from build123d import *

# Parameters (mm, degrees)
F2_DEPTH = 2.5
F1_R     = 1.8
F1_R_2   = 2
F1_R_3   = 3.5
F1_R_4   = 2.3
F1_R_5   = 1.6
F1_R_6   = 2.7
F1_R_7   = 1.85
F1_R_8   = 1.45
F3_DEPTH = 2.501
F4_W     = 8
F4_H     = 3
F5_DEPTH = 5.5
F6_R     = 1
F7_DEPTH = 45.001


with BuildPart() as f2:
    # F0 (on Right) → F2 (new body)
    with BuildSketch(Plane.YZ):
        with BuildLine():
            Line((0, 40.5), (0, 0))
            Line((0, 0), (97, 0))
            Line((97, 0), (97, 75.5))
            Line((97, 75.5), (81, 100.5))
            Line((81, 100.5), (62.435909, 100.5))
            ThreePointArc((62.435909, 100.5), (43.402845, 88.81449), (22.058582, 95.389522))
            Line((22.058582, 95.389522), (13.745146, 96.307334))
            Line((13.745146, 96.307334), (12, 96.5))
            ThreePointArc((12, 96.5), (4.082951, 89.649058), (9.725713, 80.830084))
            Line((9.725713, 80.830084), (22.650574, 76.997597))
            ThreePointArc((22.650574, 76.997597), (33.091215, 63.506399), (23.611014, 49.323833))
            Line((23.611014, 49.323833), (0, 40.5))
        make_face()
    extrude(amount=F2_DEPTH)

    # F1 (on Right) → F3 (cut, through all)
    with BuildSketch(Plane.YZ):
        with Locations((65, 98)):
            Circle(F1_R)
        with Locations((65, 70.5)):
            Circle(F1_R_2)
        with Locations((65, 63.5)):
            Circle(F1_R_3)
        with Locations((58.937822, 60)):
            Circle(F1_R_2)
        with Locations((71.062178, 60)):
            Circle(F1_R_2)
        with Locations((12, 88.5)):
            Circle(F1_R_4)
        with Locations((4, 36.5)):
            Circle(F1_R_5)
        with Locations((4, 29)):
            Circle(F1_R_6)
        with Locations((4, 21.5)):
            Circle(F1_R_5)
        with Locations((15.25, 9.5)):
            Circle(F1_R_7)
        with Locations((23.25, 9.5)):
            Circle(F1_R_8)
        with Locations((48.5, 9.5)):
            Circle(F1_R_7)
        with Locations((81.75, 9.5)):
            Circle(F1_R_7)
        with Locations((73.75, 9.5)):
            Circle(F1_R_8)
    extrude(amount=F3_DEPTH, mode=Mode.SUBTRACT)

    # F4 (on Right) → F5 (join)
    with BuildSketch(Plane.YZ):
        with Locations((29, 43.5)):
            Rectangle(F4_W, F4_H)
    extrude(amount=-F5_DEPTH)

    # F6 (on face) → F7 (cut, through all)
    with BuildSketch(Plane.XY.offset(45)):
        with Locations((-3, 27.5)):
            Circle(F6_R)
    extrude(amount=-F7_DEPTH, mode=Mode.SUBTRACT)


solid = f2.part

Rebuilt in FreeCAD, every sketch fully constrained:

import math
import FreeCAD as App
import Part
import Sketcher
Q = App.Units.Quantity

doc = App.newDocument("Part")
body = doc.addObject("PartDesign::Body", "Body")

sketch1 = body.newObject("Sketcher::SketchObject", "Sketch")
sketch1.AttachmentSupport = (doc.getObject("YZ_Plane"), [""])
sketch1.MapMode = "FlatFace"
sketch1.addGeometry(Part.LineSegment(App.Vector(0, 40.5, 0), App.Vector(0, 0, 0)), False)
sketch1.addGeometry(Part.LineSegment(App.Vector(0, 0, 0), App.Vector(97, 0, 0)), False)
sketch1.addGeometry(Part.LineSegment(App.Vector(97, 0, 0), App.Vector(97, 75.5, 0)), False)
sketch1.addGeometry(Part.LineSegment(App.Vector(97, 75.5, 0), App.Vector(81, 100.5, 0)), False)
sketch1.addGeometry(Part.LineSegment(App.Vector(81, 100.5, 0), App.Vector(62.4, 100.5, 0)), False)
sketch1.addGeometry(Part.ArcOfCircle(Part.Circle(App.Vector(40, 115.7, 0), App.Vector(0, 0, 1), 27.1), math.radians(-131), math.radians(-34)), False)
sketch1.addGeometry(Part.LineSegment(App.Vector(22.1, 95.4, 0), App.Vector(13.7, 96.3, 0)), False)
sketch1.addGeometry(Part.LineSegment(App.Vector(13.7, 96.3, 0), App.Vector(12, 96.5, 0)), False)
sketch1.addGeometry(Part.ArcOfCircle(Part.Circle(App.Vector(12, 88.5, 0), App.Vector(0, 0, 1), 8), math.radians(90), math.radians(253)), False)
sketch1.addGeometry(Part.LineSegment(App.Vector(9.7, 80.8, 0), App.Vector(22.7, 77, 0)), False)
sketch1.addGeometry(Part.ArcOfCircle(Part.Circle(App.Vector(18.5, 63, 0), App.Vector(0, 0, 1), 14.6), math.radians(-70), math.radians(73)), False)
sketch1.addGeometry(Part.LineSegment(App.Vector(23.6, 49.3, 0), App.Vector(0, 40.5, 0)), False)
sketch1.addConstraint(Sketcher.Constraint("Coincident", 0, 2, 1, 1))
sketch1.addConstraint(Sketcher.Constraint("Coincident", 1, 2, 2, 1))
sketch1.addConstraint(Sketcher.Constraint("Coincident", 2, 2, 3, 1))
sketch1.addConstraint(Sketcher.Constraint("Coincident", 3, 2, 4, 1))
sketch1.addConstraint(Sketcher.Constraint("Coincident", 4, 2, 5, 2))
sketch1.addConstraint(Sketcher.Constraint("Coincident", 5, 1, 6, 1))
sketch1.addConstraint(Sketcher.Constraint("Coincident", 6, 2, 7, 1))
sketch1.addConstraint(Sketcher.Constraint("Coincident", 7, 2, 8, 1))
sketch1.addConstraint(Sketcher.Constraint("Tangent", 8, 2, 9, 1))
sketch1.addConstraint(Sketcher.Constraint("Tangent", 9, 2, 10, 2))
sketch1.addConstraint(Sketcher.Constraint("Tangent", 10, 1, 11, 1))
sketch1.addConstraint(Sketcher.Constraint("Coincident", 11, 2, 0, 1))
sketch1.addConstraint(Sketcher.Constraint("Vertical", 0))
sketch1.addConstraint(Sketcher.Constraint("Horizontal", 1))
sketch1.addConstraint(Sketcher.Constraint("Vertical", 2))
sketch1.addConstraint(Sketcher.Constraint("Horizontal", 4))
sketch1.addConstraint(Sketcher.Constraint("Coincident", 0, 2, -1, 1))
sketch1.addConstraint(Sketcher.Constraint("Parallel", 6, 7))
sketch1.addConstraint(Sketcher.Constraint("Vertical", 8, 3, 7, 2))
sketch1.addConstraint(Sketcher.Constraint("Radius", 8, 8.0))
sketch1.addConstraint(Sketcher.Constraint("Radius", 5, 27.1))
sketch1.addConstraint(Sketcher.Constraint("Radius", 10, 14.6))
sketch1.addConstraint(Sketcher.Constraint("DistanceX", 1, 1, 1, 2, 97.0))
sketch1.addConstraint(Sketcher.Constraint("DistanceY", 0, 2, 0, 1, 40.5))
sketch1.addConstraint(Sketcher.Constraint("DistanceY", 2, 1, 2, 2, 75.5))
sketch1.addConstraint(Sketcher.Constraint("DistanceX", -1, 1, 5, 3, 40.0))
sketch1.addConstraint(Sketcher.Constraint("DistanceX", -1, 1, 8, 3, 12.0))
sketch1.addConstraint(Sketcher.Constraint("DistanceY", -1, 1, 10, 3, 63.0))
sketch1.addConstraint(Sketcher.Constraint("DistanceX", -1, 1, 3, 2, 81.0))
sketch1.addConstraint(Sketcher.Constraint("Angle", 6, Q("173.699999 deg")))
sketch1.addConstraint(Sketcher.Constraint("DistanceY", 2, 2, 8, 3, 13.0))
sketch1.addConstraint(Sketcher.Constraint("DistanceY", 2, 2, 3, 2, 25.0))
sketch1.addConstraint(Sketcher.Constraint("DistanceY", -1, 1, 5, 3, 115.7))
sketch1.addConstraint(Sketcher.Constraint("DistanceX", -1, 1, 10, 3, 18.5))
sketch1.addConstraint(Sketcher.Constraint("Distance", 7, 1.755749))
pad1 = body.newObject("PartDesign::Pad", "Pad")
pad1.Profile = sketch1
pad1.Length = 2.5

sketch2 = body.newObject("Sketcher::SketchObject", "Sketch001")
sketch2.AttachmentSupport = (doc.getObject("YZ_Plane"), [""])
sketch2.MapMode = "FlatFace"
sketch2.addGeometry(Part.Circle(App.Vector(65, 98, 0), App.Vector(0, 0, 1), 1.8), False)
sketch2.addGeometry(Part.Circle(App.Vector(65, 70.5, 0), App.Vector(0, 0, 1), 2), False)
sketch2.addGeometry(Part.Circle(App.Vector(65, 63.5, 0), App.Vector(0, 0, 1), 3.5), False)
sketch2.addGeometry(Part.Circle(App.Vector(58.9, 60, 0), App.Vector(0, 0, 1), 2), False)
sketch2.addGeometry(Part.Circle(App.Vector(71.1, 60, 0), App.Vector(0, 0, 1), 2), False)
sketch2.addGeometry(Part.Circle(App.Vector(12, 88.5, 0), App.Vector(0, 0, 1), 2.3), False)
sketch2.addGeometry(Part.Circle(App.Vector(4, 36.5, 0), App.Vector(0, 0, 1), 1.6), False)
sketch2.addGeometry(Part.Circle(App.Vector(4, 29, 0), App.Vector(0, 0, 1), 2.7), False)
sketch2.addGeometry(Part.Circle(App.Vector(4, 21.5, 0), App.Vector(0, 0, 1), 1.6), False)
sketch2.addGeometry(Part.Circle(App.Vector(15.2, 9.5, 0), App.Vector(0, 0, 1), 1.9), False)
sketch2.addGeometry(Part.Circle(App.Vector(23.2, 9.5, 0), App.Vector(0, 0, 1), 1.4), False)
sketch2.addGeometry(Part.Circle(App.Vector(48.5, 9.5, 0), App.Vector(0, 0, 1), 1.9), False)
sketch2.addGeometry(Part.Circle(App.Vector(81.8, 9.5, 0), App.Vector(0, 0, 1), 1.9), False)
sketch2.addGeometry(Part.Circle(App.Vector(73.8, 9.5, 0), App.Vector(0, 0, 1), 1.4), False)
sketch2.addConstraint(Sketcher.Constraint("Equal", 1, 3))
sketch2.addConstraint(Sketcher.Constraint("Equal", 3, 4))
sketch2.addConstraint(Sketcher.Constraint("Equal", 6, 8))
sketch2.addConstraint(Sketcher.Constraint("Equal", 9, 11))
sketch2.addConstraint(Sketcher.Constraint("Equal", 11, 12))
sketch2.addConstraint(Sketcher.Constraint("Equal", 10, 13))
sketch2.addConstraint(Sketcher.Constraint("Horizontal", 3, 3, 4, 3))
sketch2.addConstraint(Sketcher.Constraint("Horizontal", 9, 3, 10, 3))
sketch2.addConstraint(Sketcher.Constraint("Horizontal", 10, 3, 11, 3))
sketch2.addConstraint(Sketcher.Constraint("Horizontal", 11, 3, 12, 3))
sketch2.addConstraint(Sketcher.Constraint("Horizontal", 12, 3, 13, 3))
sketch2.addConstraint(Sketcher.Constraint("Vertical", 0, 3, 1, 3))
sketch2.addConstraint(Sketcher.Constraint("Vertical", 1, 3, 2, 3))
sketch2.addConstraint(Sketcher.Constraint("Vertical", 6, 3, 7, 3))
sketch2.addConstraint(Sketcher.Constraint("Vertical", 7, 3, 8, 3))
sketch2.addConstraint(Sketcher.Constraint("Diameter", 1, 4.0))
sketch2.addConstraint(Sketcher.Constraint("Diameter", 2, 7.0))
sketch2.addConstraint(Sketcher.Constraint("Diameter", 0, 3.6))
sketch2.addConstraint(Sketcher.Constraint("Diameter", 5, 4.6))
sketch2.addConstraint(Sketcher.Constraint("Diameter", 6, 3.2))
sketch2.addConstraint(Sketcher.Constraint("Diameter", 7, 5.4))
sketch2.addConstraint(Sketcher.Constraint("Diameter", 9, 3.7))
sketch2.addConstraint(Sketcher.Constraint("Diameter", 10, 2.9))
sketch2.addConstraint(Sketcher.Constraint("DistanceX", -1, 1, 0, 3, 65.0))
sketch2.addConstraint(Sketcher.Constraint("DistanceY", -1, 1, 0, 3, 98.0))
sketch2.addConstraint(Sketcher.Constraint("DistanceY", -1, 1, 3, 3, 60.0))
sketch2.addConstraint(Sketcher.Constraint("DistanceX", -1, 1, 5, 3, 12.0))
sketch2.addConstraint(Sketcher.Constraint("DistanceX", -1, 1, 6, 3, 4.0))
sketch2.addConstraint(Sketcher.Constraint("DistanceY", -1, 1, 7, 3, 29.0))
sketch2.addConstraint(Sketcher.Constraint("DistanceY", 2, 3, 1, 3, 7.0))
sketch2.addConstraint(Sketcher.Constraint("DistanceY", 1, 3, 5, 3, 18.0))
sketch2.addConstraint(Sketcher.Constraint("DistanceY", 6, 3, 5, 3, 52.0))
sketch2.addConstraint(Sketcher.Constraint("DistanceY", 8, 3, 6, 3, 15.0))
sketch2.addConstraint(Sketcher.Constraint("DistanceY", 9, 3, 8, 3, 12.0))
sketch2.addConstraint(Sketcher.Constraint("DistanceX", 9, 3, 10, 3, 8.0))
sketch2.addConstraint(Sketcher.Constraint("DistanceX", 13, 3, 12, 3, 8.0))
sketch2.addConstraint(Sketcher.Constraint("DistanceY", -1, 1, 1, 3, 70.5))
sketch2.addConstraint(Sketcher.Constraint("DistanceX", -1, 1, 11, 3, 48.5))
sketch2.addConstraint(Sketcher.Constraint("DistanceX", 10, 3, 12, 3, 58.5))
sketch2.addConstraint(Sketcher.Constraint("DistanceX", -1, 1, 9, 3, 15.25))
sketch2.addConstraint(Sketcher.Constraint("DistanceX", -1, 1, 3, 3, 58.937822))
sketch2.addConstraint(Sketcher.Constraint("DistanceX", -1, 1, 4, 3, 71.062178))
pocket1 = body.newObject("PartDesign::Pocket", "Pocket")
pocket1.Profile = sketch2
pocket1.Type = "ThroughAll"
pocket1.Reversed = True

sketch3 = body.newObject("Sketcher::SketchObject", "Sketch002")
sketch3.AttachmentSupport = (doc.getObject("YZ_Plane"), [""])
sketch3.MapMode = "FlatFace"
sketch3.addGeometry(Part.LineSegment(App.Vector(25, 45, 0), App.Vector(25, 42, 0)), False)
sketch3.addGeometry(Part.LineSegment(App.Vector(25, 42, 0), App.Vector(33, 42, 0)), False)
sketch3.addGeometry(Part.LineSegment(App.Vector(33, 42, 0), App.Vector(33, 45, 0)), False)
sketch3.addGeometry(Part.LineSegment(App.Vector(33, 45, 0), App.Vector(25, 45, 0)), False)
sketch3.addConstraint(Sketcher.Constraint("Coincident", 0, 2, 1, 1))
sketch3.addConstraint(Sketcher.Constraint("Coincident", 1, 2, 2, 1))
sketch3.addConstraint(Sketcher.Constraint("Coincident", 2, 2, 3, 1))
sketch3.addConstraint(Sketcher.Constraint("Coincident", 3, 2, 0, 1))
sketch3.addConstraint(Sketcher.Constraint("Vertical", 0))
sketch3.addConstraint(Sketcher.Constraint("Horizontal", 1))
sketch3.addConstraint(Sketcher.Constraint("Vertical", 2))
sketch3.addConstraint(Sketcher.Constraint("Horizontal", 3))
sketch3.addConstraint(Sketcher.Constraint("DistanceX", 1, 1, 1, 2, 8.0))
sketch3.addConstraint(Sketcher.Constraint("DistanceY", 0, 2, 0, 1, 3.0))
sketch3.addConstraint(Sketcher.Constraint("DistanceX", -1, 1, 0, 2, 25.0))
sketch3.addConstraint(Sketcher.Constraint("DistanceY", -1, 1, 0, 2, 42.0))
pad2 = body.newObject("PartDesign::Pad", "Pad001")
pad2.Profile = sketch3
pad2.Length = 5.5
pad2.Reversed = True

sketch4 = body.newObject("Sketcher::SketchObject", "Sketch003")
sketch4.AttachmentSupport = (doc.getObject("XY_Plane"), [""])
sketch4.MapMode = "FlatFace"
sketch4.AttachmentOffset = App.Placement(App.Vector(0, 0, 45), App.Rotation())
sketch4.addGeometry(Part.Circle(App.Vector(-3, 27.5, 0), App.Vector(0, 0, 1), 1), False)
sketch4.addConstraint(Sketcher.Constraint("Diameter", 0, 2.0))
sketch4.addConstraint(Sketcher.Constraint("DistanceX", 0, 3, -1, 1, 3.0))
sketch4.addConstraint(Sketcher.Constraint("DistanceY", -1, 1, 0, 3, 27.5))
pocket2 = body.newObject("PartDesign::Pocket", "Pocket001")
pocket2.Profile = sketch4
pocket2.Type = "ThroughAll"

doc.recompute()
